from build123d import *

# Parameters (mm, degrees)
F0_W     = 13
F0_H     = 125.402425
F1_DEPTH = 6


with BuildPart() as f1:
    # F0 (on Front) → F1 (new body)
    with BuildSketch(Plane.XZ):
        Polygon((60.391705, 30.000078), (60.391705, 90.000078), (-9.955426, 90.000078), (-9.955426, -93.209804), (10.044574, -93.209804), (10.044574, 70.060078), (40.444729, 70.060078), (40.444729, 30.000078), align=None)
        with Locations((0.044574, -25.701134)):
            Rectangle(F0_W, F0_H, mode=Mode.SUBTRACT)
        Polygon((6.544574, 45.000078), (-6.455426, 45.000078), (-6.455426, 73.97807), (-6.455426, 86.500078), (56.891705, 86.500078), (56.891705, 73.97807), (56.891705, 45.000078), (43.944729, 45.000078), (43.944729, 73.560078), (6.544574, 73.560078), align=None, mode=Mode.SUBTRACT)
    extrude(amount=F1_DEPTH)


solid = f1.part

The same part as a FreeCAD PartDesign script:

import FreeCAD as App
import Part
import Sketcher
from FreeCAD import Vector


def add_polygon(sketch, points):
    """Adds a closed chain of lines whose ends are joined by coincident constraints."""
    first, n = sketch.GeometryCount, len(points)
    for a, b in zip(points, points[1:] + points[:1]):
        sketch.addGeometry(Part.LineSegment(App.Vector(*a, 0), App.Vector(*b, 0)), False)
    for i in range(n):
        sketch.addConstraint(Sketcher.Constraint("Coincident", first + i, 2, first + (i + 1) % n, 1))

doc = App.newDocument("Part")
body = doc.addObject("PartDesign::Body", "Body")

# Sketch on XZ plane
sketch1 = body.newObject("Sketcher::SketchObject", "Sketch")
sketch1.AttachmentSupport = (doc.getObject("XZ_Plane"), [""])
sketch1.MapMode = "FlatFace"
add_polygon(sketch1, [(60.391705, 30.000078), (60.391705, 90.000078), (-9.955426, 90.000078), (-9.955426, -93.209804), (10.044574, -93.209804), (10.044574, 70.060078), (40.444729, 70.060078), (40.444729, 30.000078)])  # lines 0-7
add_polygon(sketch1, [(6.544574, -88.402346), (-6.455426, -88.402346), (-6.455426, 37.000079), (6.544574, 37.000079)])  # lines 8-11
add_polygon(sketch1, [(6.544574, 73.560078), (6.544574, 45.000078), (-6.455426, 45.000078), (-6.455426, 86.500078), (56.891705, 86.500078), (56.891705, 45.000078), (43.944729, 45.000078), (43.944729, 73.560078)])  # lines 12-19
sketch1.addConstraint([
    Sketcher.Constraint("Vertical", 0),
    Sketcher.Constraint("Horizontal", 1),
    Sketcher.Constraint("Vertical", 2),
    Sketcher.Constraint("Horizontal", 3),
    Sketcher.Constraint("Vertical", 4),
    Sketcher.Constraint("Horizontal", 5),
    Sketcher.Constraint("Vertical", 6),
    Sketcher.Constraint("Horizontal", 7),
    Sketcher.Constraint("Horizontal", 8),
    Sketcher.Constraint("Vertical", 9),
    Sketcher.Constraint("Horizontal", 10),
    Sketcher.Constraint("Vertical", 11),
    Sketcher.Constraint("Vertical", 12),
    Sketcher.Constraint("Horizontal", 13),
    Sketcher.Constraint("Vertical", 14),
    Sketcher.Constraint("Horizontal", 15),
    Sketcher.Constraint("Vertical", 16),
    Sketcher.Constraint("Horizontal", 17),
    Sketcher.Constraint("Vertical", 18),
    Sketcher.Constraint("Horizontal", 19),
    Sketcher.Constraint("Horizontal", 13, 2, 16, 2),
    Sketcher.Constraint("Vertical", 11, 2, 12, 2),
    Sketcher.Constraint("Vertical", 9, 2, 13, 2),
    Sketcher.Constraint("DistanceX", 3, 1, 3, 2, 20.0),
    Sketcher.Constraint("DistanceX", 8, 2, 8, 1, 13.0),
    Sketcher.Constraint("DistanceY", 0, 1, 0, 2, 60.0),
    Sketcher.Constraint("DistanceY", 14, 1, 14, 2, 41.5),
    Sketcher.Constraint("DistanceY", 6, 2, 9, 2, 7.000001),
    Sketcher.Constraint("DistanceY", 10, 2, 12, 2, 8.0),
    Sketcher.Constraint("DistanceY", 6, 2, 6, 1, 40.06),
    Sketcher.Constraint("DistanceY", 12, 2, 12, 1, 28.56),
    Sketcher.Constraint("DistanceX", 2, 2, 8, 2, 3.5),
    Sketcher.Constraint("DistanceX", 15, 2, 0, 2, 3.5),
    Sketcher.Constraint("DistanceX", 6, 2, 17, 2, 3.5),
    Sketcher.Constraint("DistanceX", 1, 2, 1, 1, 70.347131),
    Sketcher.Constraint("DistanceY", 2, 2, 2, 1, 183.209882),
    Sketcher.Constraint("DistanceX", 5, 1, 5, 2, 30.400155),
    Sketcher.Constraint("DistanceY", 9, 1, 9, 2, 125.402425),
    Sketcher.Constraint("DistanceY", -1, 1, 0, 2, 90.000078),
    Sketcher.Constraint("DistanceX", -1, 1, 5, 2, 40.444729),
])
pad1 = body.newObject("PartDesign::Pad", "Pad")
pad1.Profile = sketch1
pad1.Length = 6

doc.recompute()
